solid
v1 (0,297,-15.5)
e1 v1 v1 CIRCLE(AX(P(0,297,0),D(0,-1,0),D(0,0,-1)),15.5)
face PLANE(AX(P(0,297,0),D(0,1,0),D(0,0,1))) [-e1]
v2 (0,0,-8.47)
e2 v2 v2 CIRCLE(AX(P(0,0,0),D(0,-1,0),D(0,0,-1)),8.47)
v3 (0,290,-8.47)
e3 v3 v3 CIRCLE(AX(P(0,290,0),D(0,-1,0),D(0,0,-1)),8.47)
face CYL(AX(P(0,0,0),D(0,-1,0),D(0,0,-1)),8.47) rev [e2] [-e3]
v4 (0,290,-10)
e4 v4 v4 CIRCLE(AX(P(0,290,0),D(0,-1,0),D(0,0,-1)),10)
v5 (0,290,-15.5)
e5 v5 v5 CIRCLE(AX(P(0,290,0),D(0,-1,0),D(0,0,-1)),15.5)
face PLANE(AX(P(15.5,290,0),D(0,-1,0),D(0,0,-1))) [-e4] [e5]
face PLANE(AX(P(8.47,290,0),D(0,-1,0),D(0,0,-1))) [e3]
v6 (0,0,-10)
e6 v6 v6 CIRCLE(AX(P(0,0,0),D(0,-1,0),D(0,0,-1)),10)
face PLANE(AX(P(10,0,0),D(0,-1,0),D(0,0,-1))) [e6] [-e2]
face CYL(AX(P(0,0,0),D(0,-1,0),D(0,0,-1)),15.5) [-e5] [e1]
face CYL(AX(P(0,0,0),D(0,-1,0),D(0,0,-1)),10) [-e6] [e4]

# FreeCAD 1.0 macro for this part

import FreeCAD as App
import Part
import Sketcher


def add_polygon(sketch, points):
    """Adds a closed chain of lines whose ends are joined by coincident constraints."""
    first, n = sketch.GeometryCount, len(points)
    for a, b in zip(points, points[1:] + points[:1]):
        sketch.addGeometry(Part.LineSegment(App.Vector(*a, 0), App.Vector(*b, 0)), False)
    for i in range(n):
        sketch.addConstraint(Sketcher.Constraint("Coincident", first + i, 2, first + (i + 1) % n, 1))

doc = App.newDocument("Part")
body = doc.addObject("PartDesign::Body", "Body")

sketch1 = body.newObject("Sketcher::SketchObject", "Sketch")
sketch1.AttachmentSupport = (doc.getObject("XY_Plane"), [""])
sketch1.MapMode = "FlatFace"
add_polygon(sketch1, [(8.5, 0), (10, 0), (10, 290), (15.5, 290), (15.5, 297), (0, 297), (0, 290), (8.5, 290)])
sketch1.addConstraint([
    Sketcher.Constraint("Horizontal", 0),
    Sketcher.Constraint("Vertical", 1),
    Sketcher.Constraint("Horizontal", 2),
    Sketcher.Constraint("Vertical", 3),
    Sketcher.Constraint("Horizontal", 4),
    Sketcher.Constraint("Vertical", 5),
    Sketcher.Constraint("Horizontal", 6),
    Sketcher.Constraint("Vertical", 7),
    Sketcher.Constraint("PointOnObject", 0, 2, -1),
    Sketcher.Constraint("PointOnObject", 4, 2, -2),
    Sketcher.Constraint("Horizontal", 2, 2, 5, 2),
    Sketcher.Constraint("DistanceY", 1, 1, 1, 2, 290.0),
    Sketcher.Constraint("DistanceY", 3, 1, 3, 2, 7.0),
    Sketcher.Constraint("DistanceX", 2, 1, 2, 2, 5.5),
    Sketcher.Constraint("DistanceX", 4, 2, 4, 1, 15.5),
    Sketcher.Constraint("DistanceX", 0, 1, 0, 2, 1.53),
])
revolution = body.newObject("PartDesign::Revolution", "Revolution")
revolution.Profile = sketch1
revolution.ReferenceAxis = (sketch1, ["V_Axis"])
revolution.Angle = 360

doc.recompute()
